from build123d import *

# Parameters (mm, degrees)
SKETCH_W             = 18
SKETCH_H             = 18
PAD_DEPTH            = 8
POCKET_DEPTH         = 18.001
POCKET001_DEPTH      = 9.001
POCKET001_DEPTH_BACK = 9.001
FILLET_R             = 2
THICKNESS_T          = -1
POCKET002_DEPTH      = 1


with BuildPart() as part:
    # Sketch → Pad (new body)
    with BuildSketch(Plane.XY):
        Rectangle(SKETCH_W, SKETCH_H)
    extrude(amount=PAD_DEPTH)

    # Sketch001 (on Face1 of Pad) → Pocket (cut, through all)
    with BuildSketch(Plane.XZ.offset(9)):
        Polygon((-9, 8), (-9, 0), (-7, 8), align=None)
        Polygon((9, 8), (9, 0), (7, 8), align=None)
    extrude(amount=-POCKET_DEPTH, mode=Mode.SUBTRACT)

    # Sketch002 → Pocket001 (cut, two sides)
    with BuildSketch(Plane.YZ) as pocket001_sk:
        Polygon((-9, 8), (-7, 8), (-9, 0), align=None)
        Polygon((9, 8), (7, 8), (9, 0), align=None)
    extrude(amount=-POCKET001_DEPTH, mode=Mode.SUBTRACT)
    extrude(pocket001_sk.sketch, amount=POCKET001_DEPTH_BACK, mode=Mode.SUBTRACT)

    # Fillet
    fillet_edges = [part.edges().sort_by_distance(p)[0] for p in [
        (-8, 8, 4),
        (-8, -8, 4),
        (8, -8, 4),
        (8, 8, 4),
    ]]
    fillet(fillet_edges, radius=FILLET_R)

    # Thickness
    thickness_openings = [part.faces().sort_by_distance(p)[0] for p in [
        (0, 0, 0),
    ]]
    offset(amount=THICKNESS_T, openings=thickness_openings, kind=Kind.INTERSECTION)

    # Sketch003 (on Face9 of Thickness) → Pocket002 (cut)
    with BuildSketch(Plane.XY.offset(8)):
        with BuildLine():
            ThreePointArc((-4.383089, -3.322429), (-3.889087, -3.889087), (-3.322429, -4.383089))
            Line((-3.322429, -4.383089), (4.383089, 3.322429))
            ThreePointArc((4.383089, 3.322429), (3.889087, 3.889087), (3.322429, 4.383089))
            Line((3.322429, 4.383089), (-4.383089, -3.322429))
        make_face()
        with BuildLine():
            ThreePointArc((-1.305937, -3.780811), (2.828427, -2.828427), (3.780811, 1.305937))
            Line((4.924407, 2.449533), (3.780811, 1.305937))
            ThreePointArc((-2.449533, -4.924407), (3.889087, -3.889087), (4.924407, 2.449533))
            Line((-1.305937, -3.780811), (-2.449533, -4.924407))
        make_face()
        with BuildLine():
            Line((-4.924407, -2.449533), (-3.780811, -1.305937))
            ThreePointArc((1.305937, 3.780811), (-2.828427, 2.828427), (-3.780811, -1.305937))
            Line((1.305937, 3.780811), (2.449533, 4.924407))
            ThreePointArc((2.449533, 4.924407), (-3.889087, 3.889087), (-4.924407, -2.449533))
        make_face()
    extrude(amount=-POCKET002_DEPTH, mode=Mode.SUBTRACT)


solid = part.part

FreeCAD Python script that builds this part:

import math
import FreeCAD as App
import Part
import Sketcher
Q = App.Units.Quantity


def edges_at(feature, points):
    """Names of the edges that pass closest to the given points."""
    edges = feature.Shape.Edges
    near = lambda p: min(range(len(edges)), key=lambda i: edges[i].distToShape(Part.Vertex(*p))[0])
    return sorted({f"Edge{near(p) + 1}" for p in points})


def faces_at(feature, points):
    """Names of the faces that lie closest to the given points."""
    faces = feature.Shape.Faces
    near = lambda p: min(range(len(faces)), key=lambda i: faces[i].distToShape(Part.Vertex(*p))[0])
    return sorted({f"Face{near(p) + 1}" for p in points})

doc = App.newDocument("Part")
params = doc.addObject("Spreadsheet::Sheet", "Params")
for row, (alias, value) in enumerate([
    ("sketch1_width", "18 mm"),
    ("pad1_length", "8 mm"),
    ("sketch2_width", "2 mm"),
    ("sketch2_height", "8 mm"),
    ("sketch3_width", "2 mm"),
    ("sketch3_height", "8 mm"),
    ("fillet_radius", "2 mm"),
    ("thickness_wall", "1 mm"),
    ("sketch4_radius", "4.000001 mm"),
    ("sketch4_radius2", "5.5 mm"),
    ("pocket3_length", "1 mm"),
], start=1):
    params.set(f"A{row}", alias)
    params.set(f"B{row}", "=" + value)
    params.setAlias(f"B{row}", alias)

body = doc.addObject("PartDesign::Body", "Body")

# Sketch on XY plane
sketch1 = body.newObject("Sketcher::SketchObject", "Sketch")
sketch1.AttachmentSupport = (doc.getObject("XY_Plane"), [""])
sketch1.MapMode = "FlatFace"
sketch1.addGeometry([
    Part.LineSegment(App.Vector(-9, 9, 0), App.Vector(-9, -9, 0)),
    Part.LineSegment(App.Vector(-9, -9, 0), App.Vector(9, -9, 0)),
    Part.LineSegment(App.Vector(9, -9, 0), App.Vector(9, 9, 0)),
    Part.LineSegment(App.Vector(9, 9, 0), App.Vector(-9, 9, 0)),
], False)
sketch1.addConstraint([
    Sketcher.Constraint("Coincident", 0, 2, 1, 1),
    Sketcher.Constraint("Coincident", 1, 2, 2, 1),
    Sketcher.Constraint("Coincident", 2, 2, 3, 1),
    Sketcher.Constraint("Coincident", 3, 2, 0, 1),
    Sketcher.Constraint("Vertical", 0),
    Sketcher.Constraint("Horizontal", 1),
    Sketcher.Constraint("Vertical", 2),
    Sketcher.Constraint("Horizontal", 3),
    Sketcher.Constraint("Symmetric", 0, 2, 2, 2, -1, 1),
    Sketcher.Constraint("Equal", 3, 0),
    Sketcher.Constraint("DistanceX", 1, 1, 1, 2, 18.0),
])
sketch1.setExpression("Constraints[10]", "Params.sketch1_width")
pad1 = body.newObject("PartDesign::Pad", "Pad")
pad1.Profile = sketch1
pad1.setExpression("Length", "Params.pad1_length")

# Sketch on XZ plane
sketch2 = body.newObject("Sketcher::SketchObject", "Sketch001")
sketch2.AttachmentSupport = (doc.getObject("XZ_Plane"), [""])
sketch2.MapMode = "FlatFace"
sketch2.AttachmentOffset = App.Placement(App.Vector(0, 0, 9), App.Rotation())
sketch2.addGeometry([
    Part.LineSegment(App.Vector(-9, 8, 0), App.Vector(-9, 0, 0)),  # 0
    Part.LineSegment(App.Vector(-9, 0, 0), App.Vector(-7, 8, 0)),  # 1
    Part.LineSegment(App.Vector(-7, 8, 0), App.Vector(-9, 8, 0)),  # 2
    Part.LineSegment(App.Vector(9, 0, 0), App.Vector(9, 8, 0)),  # 3
    Part.LineSegment(App.Vector(9, 8, 0), App.Vector(7, 8, 0)),  # 4
    Part.LineSegment(App.Vector(7, 8, 0), App.Vector(9, 0, 0)),  # 5
], False)
sketch2.addConstraint([
    Sketcher.Constraint("Coincident", 0, 2, 1, 1),
    Sketcher.Constraint("Coincident", 1, 2, 2, 1),
    Sketcher.Constraint("Coincident", 2, 2, 0, 1),
    Sketcher.Constraint("Coincident", 3, 2, 4, 1),
    Sketcher.Constraint("Coincident", 4, 2, 5, 1),
    Sketcher.Constraint("Coincident", 5, 2, 3, 1),
    Sketcher.Constraint("Vertical", 0),
    Sketcher.Constraint("Horizontal", 2),
    Sketcher.Constraint("Vertical", 3),
    Sketcher.Constraint("Horizontal", 4),
    Sketcher.Constraint("Symmetric", 0, 2, 5, 2, -1, 1),
    Sketcher.Constraint("Symmetric", 1, 2, 4, 2, -2),
    Sketcher.Constraint("PointOnObject", 0, 2, -1),
    Sketcher.Constraint("DistanceX", 2, 2, 2, 1, 2.0),
    Sketcher.Constraint("DistanceY", 0, 2, 0, 1, 8.0),
    Sketcher.Constraint("DistanceX", 0, 2, -1, 1, 9.0),
])
sketch2.setExpression("Constraints[13]", "Params.sketch2_width")
sketch2.setExpression("Constraints[14]", "Params.sketch2_height")
pocket1 = body.newObject("PartDesign::Pocket", "Pocket")
pocket1.Profile = sketch2
pocket1.Type = "ThroughAll"

# Sketch on YZ plane
sketch3 = body.newObject("Sketcher::SketchObject", "Sketch002")
sketch3.AttachmentSupport = (doc.getObject("YZ_Plane"), [""])
sketch3.MapMode = "FlatFace"
sketch3.addGeometry([
    Part.LineSegment(App.Vector(-7, 8, 0), App.Vector(-9, 8, 0)),  # 0
    Part.LineSegment(App.Vector(-9, 8, 0), App.Vector(-9, 0, 0)),  # 1
    Part.LineSegment(App.Vector(-9, 0, 0), App.Vector(-7, 8, 0)),  # 2
    Part.LineSegment(App.Vector(9, 8, 0), App.Vector(7, 8, 0)),  # 3
    Part.LineSegment(App.Vector(7, 8, 0), App.Vector(9, 0, 0)),  # 4
    Part.LineSegment(App.Vector(9, 0, 0), App.Vector(9, 8, 0)),  # 5
], False)
sketch3.addConstraint([
    Sketcher.Constraint("Coincident", 0, 2, 1, 1),
    Sketcher.Constraint("Coincident", 1, 2, 2, 1),
    Sketcher.Constraint("Coincident", 2, 2, 0, 1),
    Sketcher.Constraint("Coincident", 3, 2, 4, 1),
    Sketcher.Constraint("Coincident", 4, 2, 5, 1),
    Sketcher.Constraint("Coincident", 5, 2, 3, 1),
    Sketcher.Constraint("Horizontal", 0),
    Sketcher.Constraint("Vertical", 1),
    Sketcher.Constraint("Horizontal", 3),
    Sketcher.Constraint("Vertical", 5),
    Sketcher.Constraint("Symmetric", 1, 2, 4, 2, -1, 1),
    Sketcher.Constraint("Symmetric", 2, 2, 3, 2, -2),
    Sketcher.Constraint("PointOnObject", 1, 2, -1),
    Sketcher.Constraint("DistanceX", 0, 2, 0, 1, 2.0),
    Sketcher.Constraint("DistanceY", 1, 2, 1, 1, 8.0),
    Sketcher.Constraint("DistanceX", 0, 2, -1, 1, 9.0),
])
sketch3.setExpression("Constraints[13]", "Params.sketch3_width")
sketch3.setExpression("Constraints[14]", "Params.sketch3_height")
pocket2 = body.newObject("PartDesign::Pocket", "Pocket001")
pocket2.Profile = sketch3
pocket2.Type = "ThroughAll"
pocket2.Midplane = True
doc.recompute()

fillet = body.newObject("PartDesign::Fillet", "Fillet")
fillet.Base = (pocket2, edges_at(pocket2, [
    (-8, 8, 4),
    (-8, -8, 4),
    (8, -8, 4),
    (8, 8, 4),
]))
fillet.setExpression("Radius", "Params.fillet_radius")
doc.recompute()

thickness = body.newObject("PartDesign::Thickness", "Thickness")
thickness.Base = (fillet, faces_at(fillet, [(0, 0, 0)]))
thickness.setExpression("Value", "Params.thickness_wall")
thickness.Reversed = True
thickness.Join = "Intersection"

# Sketch on XY plane
sketch4 = body.newObject("Sketcher::SketchObject", "Sketch003")
sketch4.AttachmentSupport = (doc.getObject("XY_Plane"), [""])
sketch4.MapMode = "FlatFace"
sketch4.AttachmentOffset = App.Placement(App.Vector(0, 0, 8), App.Rotation())
sketch4.addGeometry([
    Part.ArcOfCircle(Part.Circle(App.Vector(0.000057, 0.000057, 0), App.Vector(0, 0, 1), 5.50008), math.radians(-142.837364), math.radians(-127.162636)),  # 0
    Part.LineSegment(App.Vector(-3.322429, -4.383089, 0), App.Vector(4.383089, 3.322429, 0)),  # 1
    Part.ArcOfCircle(Part.Circle(App.Vector(-0.000057, -0.000057, 0), App.Vector(0, 0, 1), 5.50008), math.radians(37.162636), math.radians(52.837364)),  # 2
    Part.LineSegment(App.Vector(3.322429, 4.383089, 0), App.Vector(-4.383089, -3.322429, 0)),  # 3
    Part.ArcOfCircle(Part.Circle(App.Vector(-0.000001, 0.000001, 0), App.Vector(0, 0, 1), 4.000001), math.radians(-109.055507), math.radians(19.055507)),  # 4
    Part.LineSegment(App.Vector(-1.305937, -3.780811, 0), App.Vector(-2.449533, -4.924407, 0)),  # 5
    Part.ArcOfCircle(Part.Circle(App.Vector(0, 0, 0), App.Vector(0, 0, 1), 5.5), math.radians(-116.446991), math.radians(26.446991)),  # 6
    Part.LineSegment(App.Vector(4.924407, 2.449533, 0), App.Vector(3.780811, 1.305937, 0)),  # 7
    Part.LineSegment(App.Vector(-4.924407, -2.449533, 0), App.Vector(-3.780811, -1.305937, 0)),  # 8
    Part.ArcOfCircle(Part.Circle(App.Vector(0.000001, -0.000001, 0), App.Vector(0, 0, 1), 4.000001), math.radians(70.944493), math.radians(199.055507)),  # 9
    Part.LineSegment(App.Vector(1.305937, 3.780811, 0), App.Vector(2.449533, 4.924407, 0)),  # 10
    Part.ArcOfCircle(Part.Circle(App.Vector(0, 0, 0), App.Vector(0, 0, 1), 5.5), math.radians(63.553009), math.radians(206.446991)),  # 11
], False)
sketch4.addConstraint([
    Sketcher.Constraint("Coincident", 0, 2, 1, 1),
    Sketcher.Constraint("Coincident", 1, 2, 2, 1),
    Sketcher.Constraint("Coincident", 2, 2, 3, 1),
    Sketcher.Constraint("Coincident", 3, 2, 0, 1),
    Sketcher.Constraint("Coincident", 4, 1, 5, 1),
    Sketcher.Constraint("Coincident", 5, 2, 6, 1),
    Sketcher.Constraint("Coincident", 6, 2, 7, 1),
    Sketcher.Constraint("Coincident", 7, 2, 4, 2),
    Sketcher.Constraint("Coincident", 8, 2, 9, 2),
    Sketcher.Constraint("Coincident", 9, 1, 10, 1),
    Sketcher.Constraint("Coincident", 10, 2, 11, 1),
    Sketcher.Constraint("Coincident", 11, 2, 8, 1),
    Sketcher.Constraint("Coincident", 4, 3, -1, 1),
    Sketcher.Constraint("Coincident", 6, 3, -1, 1),
    Sketcher.Constraint("Coincident", 9, 3, -1, 1),
    Sketcher.Constraint("Coincident", 11, 3, -1, 1),
    Sketcher.Constraint("Equal", 0, 2),
    Sketcher.Constraint("Equal", 4, 9),
    Sketcher.Constraint("Equal", 6, 11),
    Sketcher.Constraint("Symmetric", 0, 3, 2, 3, -1, 1),
    Sketcher.Constraint("Parallel", 1, 3),
    Sketcher.Constraint("Parallel", 3, 5),
    Sketcher.Constraint("Parallel", 5, 7),
    Sketcher.Constraint("Parallel", 7, 8),
    Sketcher.Constraint("Parallel", 8, 10),
    Sketcher.Constraint("Equal", 1, 3),
    Sketcher.Constraint("Equal", 5, 7),
    Sketcher.Constraint("Equal", 7, 8),
    Sketcher.Constraint("Equal", 8, 10),
    Sketcher.Constraint("Radius", 4, 4.000001),
    Sketcher.Constraint("Radius", 6, 5.5),
    Sketcher.Constraint("Angle", 1, Q("45 deg")),
    Sketcher.Constraint("Radius", 0, 5.50008),
    Sketcher.Constraint("Distance", 1, 10.897248),
    Sketcher.Constraint("Distance", 5, 1.617289),
    Sketcher.Constraint("DistanceX", 0, 2, -1, 1, 3.322429),
    Sketcher.Constraint("DistanceY", 0, 2, -1, 1, 4.383089),
])
sketch4.setExpression("Constraints[29]", "Params.sketch4_radius")
sketch4.setExpression("Constraints[30]", "Params.sketch4_radius2")
pocket3 = body.newObject("PartDesign::Pocket", "Pocket002")
pocket3.Profile = sketch4
pocket3.setExpression("Length", "Params.pocket3_length")

doc.recompute()
